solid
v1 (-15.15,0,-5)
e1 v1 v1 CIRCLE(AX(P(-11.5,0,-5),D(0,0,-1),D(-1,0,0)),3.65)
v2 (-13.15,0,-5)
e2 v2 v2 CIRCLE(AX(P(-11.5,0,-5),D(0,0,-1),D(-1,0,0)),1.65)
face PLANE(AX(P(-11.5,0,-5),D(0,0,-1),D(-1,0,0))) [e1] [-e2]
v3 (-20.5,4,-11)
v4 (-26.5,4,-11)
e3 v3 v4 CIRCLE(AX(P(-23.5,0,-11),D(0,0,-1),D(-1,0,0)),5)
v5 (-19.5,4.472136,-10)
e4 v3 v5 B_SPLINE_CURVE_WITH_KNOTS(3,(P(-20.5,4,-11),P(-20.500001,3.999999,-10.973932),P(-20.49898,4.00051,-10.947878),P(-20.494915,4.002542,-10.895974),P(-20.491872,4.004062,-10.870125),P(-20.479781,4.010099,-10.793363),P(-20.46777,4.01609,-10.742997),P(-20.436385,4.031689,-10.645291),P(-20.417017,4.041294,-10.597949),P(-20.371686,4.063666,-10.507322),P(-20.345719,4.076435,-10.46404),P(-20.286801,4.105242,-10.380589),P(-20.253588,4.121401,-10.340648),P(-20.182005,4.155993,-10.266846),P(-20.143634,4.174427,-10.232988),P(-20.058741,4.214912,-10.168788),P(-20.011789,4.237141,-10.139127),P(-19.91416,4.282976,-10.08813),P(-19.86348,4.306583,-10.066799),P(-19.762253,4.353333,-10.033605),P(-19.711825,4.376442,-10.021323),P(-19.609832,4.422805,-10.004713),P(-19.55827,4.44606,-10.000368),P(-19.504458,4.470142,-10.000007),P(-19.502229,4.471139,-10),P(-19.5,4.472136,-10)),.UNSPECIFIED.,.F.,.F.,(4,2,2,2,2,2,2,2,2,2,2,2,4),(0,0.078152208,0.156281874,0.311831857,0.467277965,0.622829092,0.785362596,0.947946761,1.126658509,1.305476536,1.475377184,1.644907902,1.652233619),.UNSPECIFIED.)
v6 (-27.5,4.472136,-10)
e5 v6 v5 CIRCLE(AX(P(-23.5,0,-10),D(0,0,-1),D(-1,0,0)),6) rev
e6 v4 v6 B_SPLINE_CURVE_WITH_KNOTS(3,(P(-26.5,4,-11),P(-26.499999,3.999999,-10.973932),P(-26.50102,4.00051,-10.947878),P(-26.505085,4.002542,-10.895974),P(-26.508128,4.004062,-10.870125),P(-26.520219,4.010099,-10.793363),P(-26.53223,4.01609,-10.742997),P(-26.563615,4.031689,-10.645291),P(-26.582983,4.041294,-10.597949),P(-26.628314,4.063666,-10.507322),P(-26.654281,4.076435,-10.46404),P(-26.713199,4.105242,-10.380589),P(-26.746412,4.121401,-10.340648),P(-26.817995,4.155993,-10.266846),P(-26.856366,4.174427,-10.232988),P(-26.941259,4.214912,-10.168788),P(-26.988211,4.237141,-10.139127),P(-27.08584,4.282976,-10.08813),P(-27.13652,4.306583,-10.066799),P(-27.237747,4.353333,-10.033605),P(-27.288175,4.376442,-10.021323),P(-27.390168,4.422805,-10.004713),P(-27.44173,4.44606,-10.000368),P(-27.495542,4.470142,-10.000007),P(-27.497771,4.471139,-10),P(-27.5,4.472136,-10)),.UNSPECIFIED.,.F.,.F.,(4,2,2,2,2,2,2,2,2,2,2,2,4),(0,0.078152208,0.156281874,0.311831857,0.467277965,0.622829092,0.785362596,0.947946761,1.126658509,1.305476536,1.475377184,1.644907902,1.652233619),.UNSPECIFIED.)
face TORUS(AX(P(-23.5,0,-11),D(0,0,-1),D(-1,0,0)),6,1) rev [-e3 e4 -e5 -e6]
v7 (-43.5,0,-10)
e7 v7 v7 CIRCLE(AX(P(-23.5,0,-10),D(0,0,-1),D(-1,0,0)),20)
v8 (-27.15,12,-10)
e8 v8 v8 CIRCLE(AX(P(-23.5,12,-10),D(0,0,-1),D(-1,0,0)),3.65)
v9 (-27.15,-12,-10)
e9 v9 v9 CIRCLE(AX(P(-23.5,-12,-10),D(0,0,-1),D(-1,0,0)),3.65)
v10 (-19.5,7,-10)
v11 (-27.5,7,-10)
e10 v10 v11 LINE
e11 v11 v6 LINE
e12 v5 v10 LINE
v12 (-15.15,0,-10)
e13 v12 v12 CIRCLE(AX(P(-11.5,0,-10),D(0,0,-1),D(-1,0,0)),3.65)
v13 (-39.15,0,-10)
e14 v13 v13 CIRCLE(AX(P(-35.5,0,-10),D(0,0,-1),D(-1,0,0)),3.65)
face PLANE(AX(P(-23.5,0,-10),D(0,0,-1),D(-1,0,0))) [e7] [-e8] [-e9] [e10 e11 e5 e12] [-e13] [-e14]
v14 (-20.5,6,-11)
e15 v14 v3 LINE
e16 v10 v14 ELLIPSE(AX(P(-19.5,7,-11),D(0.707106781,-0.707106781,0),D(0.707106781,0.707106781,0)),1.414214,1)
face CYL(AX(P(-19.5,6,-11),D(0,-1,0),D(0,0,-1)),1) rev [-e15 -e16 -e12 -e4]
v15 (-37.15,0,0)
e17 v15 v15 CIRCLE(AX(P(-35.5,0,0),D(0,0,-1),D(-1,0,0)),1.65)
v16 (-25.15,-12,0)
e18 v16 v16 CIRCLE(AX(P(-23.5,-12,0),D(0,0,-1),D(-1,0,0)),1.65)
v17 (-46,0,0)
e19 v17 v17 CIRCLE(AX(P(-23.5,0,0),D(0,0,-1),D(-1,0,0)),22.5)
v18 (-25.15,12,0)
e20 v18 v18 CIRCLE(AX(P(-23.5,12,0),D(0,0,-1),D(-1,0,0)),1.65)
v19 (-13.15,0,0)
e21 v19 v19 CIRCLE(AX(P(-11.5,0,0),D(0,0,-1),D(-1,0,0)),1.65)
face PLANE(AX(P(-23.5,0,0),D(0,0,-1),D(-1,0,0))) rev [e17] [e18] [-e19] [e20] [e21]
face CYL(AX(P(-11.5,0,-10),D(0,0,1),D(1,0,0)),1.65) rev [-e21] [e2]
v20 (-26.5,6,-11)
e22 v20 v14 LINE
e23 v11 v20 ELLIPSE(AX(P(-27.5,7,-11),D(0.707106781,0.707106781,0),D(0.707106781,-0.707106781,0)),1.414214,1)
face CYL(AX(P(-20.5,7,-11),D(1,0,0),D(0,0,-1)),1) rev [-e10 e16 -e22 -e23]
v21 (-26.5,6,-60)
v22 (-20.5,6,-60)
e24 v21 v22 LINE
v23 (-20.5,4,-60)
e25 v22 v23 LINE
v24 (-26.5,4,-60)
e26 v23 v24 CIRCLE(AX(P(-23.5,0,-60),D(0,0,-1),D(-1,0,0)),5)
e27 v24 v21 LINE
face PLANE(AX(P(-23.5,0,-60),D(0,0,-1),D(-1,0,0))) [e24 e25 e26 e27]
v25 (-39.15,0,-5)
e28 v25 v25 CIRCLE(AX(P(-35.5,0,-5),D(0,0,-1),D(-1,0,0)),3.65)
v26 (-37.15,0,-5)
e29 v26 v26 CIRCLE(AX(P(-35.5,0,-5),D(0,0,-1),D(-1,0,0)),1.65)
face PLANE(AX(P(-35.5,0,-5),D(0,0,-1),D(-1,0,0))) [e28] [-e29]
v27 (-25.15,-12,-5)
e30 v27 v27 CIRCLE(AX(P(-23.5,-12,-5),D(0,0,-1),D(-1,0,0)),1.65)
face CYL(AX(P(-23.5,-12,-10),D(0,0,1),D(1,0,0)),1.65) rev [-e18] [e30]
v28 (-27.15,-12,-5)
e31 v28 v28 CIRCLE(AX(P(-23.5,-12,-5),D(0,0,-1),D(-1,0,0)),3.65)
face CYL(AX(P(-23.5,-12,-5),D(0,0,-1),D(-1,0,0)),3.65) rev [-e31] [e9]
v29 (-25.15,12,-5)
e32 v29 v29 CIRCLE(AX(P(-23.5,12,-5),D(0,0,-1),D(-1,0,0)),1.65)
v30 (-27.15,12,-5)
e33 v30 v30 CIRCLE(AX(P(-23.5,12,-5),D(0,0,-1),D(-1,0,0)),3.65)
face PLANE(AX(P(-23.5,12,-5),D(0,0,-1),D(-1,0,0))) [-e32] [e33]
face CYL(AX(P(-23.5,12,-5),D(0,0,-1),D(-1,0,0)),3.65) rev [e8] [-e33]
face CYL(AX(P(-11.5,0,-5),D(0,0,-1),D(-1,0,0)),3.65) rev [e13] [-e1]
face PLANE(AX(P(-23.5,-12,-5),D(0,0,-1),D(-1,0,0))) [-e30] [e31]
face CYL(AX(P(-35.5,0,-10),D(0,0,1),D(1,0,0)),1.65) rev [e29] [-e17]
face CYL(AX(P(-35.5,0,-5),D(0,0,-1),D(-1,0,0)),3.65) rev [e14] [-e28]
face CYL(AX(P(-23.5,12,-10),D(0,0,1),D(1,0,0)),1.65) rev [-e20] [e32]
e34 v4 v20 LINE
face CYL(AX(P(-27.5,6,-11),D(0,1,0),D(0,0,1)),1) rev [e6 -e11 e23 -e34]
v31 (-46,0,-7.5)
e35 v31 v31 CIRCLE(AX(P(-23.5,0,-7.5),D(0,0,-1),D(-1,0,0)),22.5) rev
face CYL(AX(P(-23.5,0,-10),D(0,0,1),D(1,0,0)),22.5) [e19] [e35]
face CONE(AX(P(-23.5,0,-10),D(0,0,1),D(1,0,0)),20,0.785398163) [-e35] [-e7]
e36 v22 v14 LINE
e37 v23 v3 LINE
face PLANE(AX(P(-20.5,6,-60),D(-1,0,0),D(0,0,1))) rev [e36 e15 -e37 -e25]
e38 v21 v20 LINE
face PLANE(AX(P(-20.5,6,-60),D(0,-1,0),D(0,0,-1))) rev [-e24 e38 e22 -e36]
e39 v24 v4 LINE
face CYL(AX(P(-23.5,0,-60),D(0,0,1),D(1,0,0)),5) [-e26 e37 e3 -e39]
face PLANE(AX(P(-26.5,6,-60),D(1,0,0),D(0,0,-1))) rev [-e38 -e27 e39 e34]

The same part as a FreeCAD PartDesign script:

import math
import FreeCAD as App
import Part
import Sketcher

V = App.Vector
Q = App.Units.Quantity


def edges_at(feature, points):
    """Names of the edges that pass closest to the given points."""
    edges = feature.Shape.Edges
    near = lambda p: min(range(len(edges)), key=lambda i: edges[i].distToShape(Part.Vertex(*p))[0])
    return sorted({f"Edge{near(p) + 1}" for p in points})

doc = App.newDocument("Part")
body = doc.addObject("PartDesign::Body", "Body")

# Sketch on XY plane
sketch1 = doc.addObject("Sketcher::SketchObject", "Sketch")
body.addObject(sketch1)
sketch1.AttachmentSupport = (doc.XY_Plane, [""])
sketch1.MapMode = "FlatFace"
sketch1.addGeometry([
    Part.Circle(V(-23.5, 0, 0), V(0, 0, 1), 22.5),  # 0
    Part.Circle(V(-23.5, -12, 0), V(0, 0, 1), 1.65),  # 1
    Part.Circle(V(-11.5, 0, 0), V(0, 0, 1), 1.65),  # 2
    Part.Circle(V(-23.5, 12, 0), V(0, 0, 1), 1.65),  # 3
    Part.Circle(V(-35.5, 0, 0), V(0, 0, 1), 1.65),  # 4
], False)
sketch1.addConstraint([
    Sketcher.Constraint("Equal", 1, 2),
    Sketcher.Constraint("Equal", 2, 3),
    Sketcher.Constraint("Equal", 3, 4),
    Sketcher.Constraint("Symmetric", 1, 3, 3, 3, -1),
    Sketcher.Constraint("PointOnObject", 0, 3, -1),
    Sketcher.Constraint("PointOnObject", 2, 3, -1),
    Sketcher.Constraint("PointOnObject", 4, 3, -1),
    Sketcher.Constraint("Vertical", 0, 3, 1, 3),
    Sketcher.Constraint("Diameter", 0, Q("45 mm")),
    Sketcher.Constraint("Diameter", 1, Q("3.3 mm")),
    Sketcher.Constraint("DistanceY", 1, 3, -1, 1, Q("12 mm")),
    Sketcher.Constraint("DistanceX", 0, 3, 2, 3, Q("12 mm")),
    Sketcher.Constraint("DistanceX", 4, 3, 0, 3, Q("12 mm")),
    Sketcher.Constraint("DistanceX", 0, 3, -1, 1, Q("23.5 mm")),
])
pad1 = doc.addObject("PartDesign::Pad", "Pad")
body.addObject(pad1)
pad1.Profile = sketch1
pad1.Length = 10
pad1.Reversed = True

# Sketch on XY plane
sketch2 = doc.addObject("Sketcher::SketchObject", "Sketch001")
body.addObject(sketch2)
sketch2.AttachmentSupport = (doc.XY_Plane, [""])
sketch2.MapMode = "FlatFace"
sketch2.AttachmentOffset = App.Placement(V(0, 0, -10), App.Rotation())
sketch2.addGeometry([
    Part.Circle(V(-23.5, 12, 0), V(0, 0, 1), 3.65),
    Part.Circle(V(-11.5, 0, 0), V(0, 0, 1), 3.65),
    Part.Circle(V(-35.5, 0, 0), V(0, 0, 1), 3.65),
    Part.Circle(V(-23.5, -12, 0), V(0, 0, 1), 3.65),
], False)
sketch2.addConstraint([
    Sketcher.Constraint("Equal", 0, 1),
    Sketcher.Constraint("Equal", 1, 2),
    Sketcher.Constraint("Equal", 2, 3),
    Sketcher.Constraint("Symmetric", 0, 3, 3, 3, -1),
    Sketcher.Constraint("PointOnObject", 1, 3, -1),
    Sketcher.Constraint("PointOnObject", 2, 3, -1),
    Sketcher.Constraint("Diameter", 0, Q("7.3 mm")),
    Sketcher.Constraint("DistanceY", -1, 1, 0, 3, Q("12 mm")),
    Sketcher.Constraint("DistanceX", 0, 3, 1, 3, Q("12 mm")),
    Sketcher.Constraint("DistanceX", 2, 3, 0, 3, Q("12 mm")),
    Sketcher.Constraint("DistanceX", 0, 3, -1, 1, Q("23.5 mm")),
])
pocket1 = doc.addObject("PartDesign::Pocket", "Pocket")
body.addObject(pocket1)
pocket1.Profile = sketch2
pocket1.Length = 10
pocket1.Midplane = True

# Sketch on XY plane
sketch3 = doc.addObject("Sketcher::SketchObject", "Sketch002")
body.addObject(sketch3)
sketch3.AttachmentSupport = (doc.XY_Plane, [""])
sketch3.MapMode = "FlatFace"
sketch3.AttachmentOffset = App.Placement(V(0, 0, -10), App.Rotation())
sketch3.addGeometry([
    Part.LineSegment(V(-26.5, 6, 0), V(-20.5, 6, 0)),
    Part.LineSegment(V(-20.5, 6, 0), V(-20.5, 4, 0)),
    Part.ArcOfCircle(Part.Circle(V(-23.5, 0, 0), V(0, 0, 1), 5), math.radians(126.869898), math.radians(413.130102)),
    Part.LineSegment(V(-26.5, 4, 0), V(-26.5, 6, 0)),
], False)
sketch3.addConstraint([
    Sketcher.Constraint("Coincident", 0, 2, 1, 1),
    Sketcher.Constraint("Coincident", 1, 2, 2, 2),
    Sketcher.Constraint("Coincident", 2, 1, 3, 1),
    Sketcher.Constraint("Coincident", 3, 2, 0, 1),
    Sketcher.Constraint("Horizontal", 0),
    Sketcher.Constraint("Vertical", 1),
    Sketcher.Constraint("Vertical", 3),
    Sketcher.Constraint("PointOnObject", 2, 3, -1),
    Sketcher.Constraint("Horizontal", 1, 2, 2, 1),
    Sketcher.Constraint("Radius", 2, Q("5 mm")),
    Sketcher.Constraint("DistanceX", 0, 1, 0, 2, Q("6 mm")),
    Sketcher.Constraint("DistanceY", 1, 2, 1, 1, Q("2 mm")),
    Sketcher.Constraint("DistanceX", 2, 3, -1, 1, Q("23.5 mm")),
])
pad2 = doc.addObject("PartDesign::Pad", "Pad001")
body.addObject(pad2)
pad2.Profile = sketch3
pad2.Length = 50
pad2.Reversed = True
doc.recompute()

fillet = doc.addObject("PartDesign::Fillet", "Fillet")
body.addObject(fillet)
fillet.Base = (pad2, edges_at(pad2, [
    (-23.5, -5, -10),
    (-26.5, 5, -10),
    (-23.5, 6, -10),
    (-20.5, 5, -10),
]))
fillet.Radius = 1
doc.recompute()

chamfer = doc.addObject("PartDesign::Chamfer", "Chamfer")
body.addObject(chamfer)
chamfer.Base = (fillet, edges_at(fillet, [(-1, 0, -10)]))
chamfer.Size = 2.5

doc.recompute()
